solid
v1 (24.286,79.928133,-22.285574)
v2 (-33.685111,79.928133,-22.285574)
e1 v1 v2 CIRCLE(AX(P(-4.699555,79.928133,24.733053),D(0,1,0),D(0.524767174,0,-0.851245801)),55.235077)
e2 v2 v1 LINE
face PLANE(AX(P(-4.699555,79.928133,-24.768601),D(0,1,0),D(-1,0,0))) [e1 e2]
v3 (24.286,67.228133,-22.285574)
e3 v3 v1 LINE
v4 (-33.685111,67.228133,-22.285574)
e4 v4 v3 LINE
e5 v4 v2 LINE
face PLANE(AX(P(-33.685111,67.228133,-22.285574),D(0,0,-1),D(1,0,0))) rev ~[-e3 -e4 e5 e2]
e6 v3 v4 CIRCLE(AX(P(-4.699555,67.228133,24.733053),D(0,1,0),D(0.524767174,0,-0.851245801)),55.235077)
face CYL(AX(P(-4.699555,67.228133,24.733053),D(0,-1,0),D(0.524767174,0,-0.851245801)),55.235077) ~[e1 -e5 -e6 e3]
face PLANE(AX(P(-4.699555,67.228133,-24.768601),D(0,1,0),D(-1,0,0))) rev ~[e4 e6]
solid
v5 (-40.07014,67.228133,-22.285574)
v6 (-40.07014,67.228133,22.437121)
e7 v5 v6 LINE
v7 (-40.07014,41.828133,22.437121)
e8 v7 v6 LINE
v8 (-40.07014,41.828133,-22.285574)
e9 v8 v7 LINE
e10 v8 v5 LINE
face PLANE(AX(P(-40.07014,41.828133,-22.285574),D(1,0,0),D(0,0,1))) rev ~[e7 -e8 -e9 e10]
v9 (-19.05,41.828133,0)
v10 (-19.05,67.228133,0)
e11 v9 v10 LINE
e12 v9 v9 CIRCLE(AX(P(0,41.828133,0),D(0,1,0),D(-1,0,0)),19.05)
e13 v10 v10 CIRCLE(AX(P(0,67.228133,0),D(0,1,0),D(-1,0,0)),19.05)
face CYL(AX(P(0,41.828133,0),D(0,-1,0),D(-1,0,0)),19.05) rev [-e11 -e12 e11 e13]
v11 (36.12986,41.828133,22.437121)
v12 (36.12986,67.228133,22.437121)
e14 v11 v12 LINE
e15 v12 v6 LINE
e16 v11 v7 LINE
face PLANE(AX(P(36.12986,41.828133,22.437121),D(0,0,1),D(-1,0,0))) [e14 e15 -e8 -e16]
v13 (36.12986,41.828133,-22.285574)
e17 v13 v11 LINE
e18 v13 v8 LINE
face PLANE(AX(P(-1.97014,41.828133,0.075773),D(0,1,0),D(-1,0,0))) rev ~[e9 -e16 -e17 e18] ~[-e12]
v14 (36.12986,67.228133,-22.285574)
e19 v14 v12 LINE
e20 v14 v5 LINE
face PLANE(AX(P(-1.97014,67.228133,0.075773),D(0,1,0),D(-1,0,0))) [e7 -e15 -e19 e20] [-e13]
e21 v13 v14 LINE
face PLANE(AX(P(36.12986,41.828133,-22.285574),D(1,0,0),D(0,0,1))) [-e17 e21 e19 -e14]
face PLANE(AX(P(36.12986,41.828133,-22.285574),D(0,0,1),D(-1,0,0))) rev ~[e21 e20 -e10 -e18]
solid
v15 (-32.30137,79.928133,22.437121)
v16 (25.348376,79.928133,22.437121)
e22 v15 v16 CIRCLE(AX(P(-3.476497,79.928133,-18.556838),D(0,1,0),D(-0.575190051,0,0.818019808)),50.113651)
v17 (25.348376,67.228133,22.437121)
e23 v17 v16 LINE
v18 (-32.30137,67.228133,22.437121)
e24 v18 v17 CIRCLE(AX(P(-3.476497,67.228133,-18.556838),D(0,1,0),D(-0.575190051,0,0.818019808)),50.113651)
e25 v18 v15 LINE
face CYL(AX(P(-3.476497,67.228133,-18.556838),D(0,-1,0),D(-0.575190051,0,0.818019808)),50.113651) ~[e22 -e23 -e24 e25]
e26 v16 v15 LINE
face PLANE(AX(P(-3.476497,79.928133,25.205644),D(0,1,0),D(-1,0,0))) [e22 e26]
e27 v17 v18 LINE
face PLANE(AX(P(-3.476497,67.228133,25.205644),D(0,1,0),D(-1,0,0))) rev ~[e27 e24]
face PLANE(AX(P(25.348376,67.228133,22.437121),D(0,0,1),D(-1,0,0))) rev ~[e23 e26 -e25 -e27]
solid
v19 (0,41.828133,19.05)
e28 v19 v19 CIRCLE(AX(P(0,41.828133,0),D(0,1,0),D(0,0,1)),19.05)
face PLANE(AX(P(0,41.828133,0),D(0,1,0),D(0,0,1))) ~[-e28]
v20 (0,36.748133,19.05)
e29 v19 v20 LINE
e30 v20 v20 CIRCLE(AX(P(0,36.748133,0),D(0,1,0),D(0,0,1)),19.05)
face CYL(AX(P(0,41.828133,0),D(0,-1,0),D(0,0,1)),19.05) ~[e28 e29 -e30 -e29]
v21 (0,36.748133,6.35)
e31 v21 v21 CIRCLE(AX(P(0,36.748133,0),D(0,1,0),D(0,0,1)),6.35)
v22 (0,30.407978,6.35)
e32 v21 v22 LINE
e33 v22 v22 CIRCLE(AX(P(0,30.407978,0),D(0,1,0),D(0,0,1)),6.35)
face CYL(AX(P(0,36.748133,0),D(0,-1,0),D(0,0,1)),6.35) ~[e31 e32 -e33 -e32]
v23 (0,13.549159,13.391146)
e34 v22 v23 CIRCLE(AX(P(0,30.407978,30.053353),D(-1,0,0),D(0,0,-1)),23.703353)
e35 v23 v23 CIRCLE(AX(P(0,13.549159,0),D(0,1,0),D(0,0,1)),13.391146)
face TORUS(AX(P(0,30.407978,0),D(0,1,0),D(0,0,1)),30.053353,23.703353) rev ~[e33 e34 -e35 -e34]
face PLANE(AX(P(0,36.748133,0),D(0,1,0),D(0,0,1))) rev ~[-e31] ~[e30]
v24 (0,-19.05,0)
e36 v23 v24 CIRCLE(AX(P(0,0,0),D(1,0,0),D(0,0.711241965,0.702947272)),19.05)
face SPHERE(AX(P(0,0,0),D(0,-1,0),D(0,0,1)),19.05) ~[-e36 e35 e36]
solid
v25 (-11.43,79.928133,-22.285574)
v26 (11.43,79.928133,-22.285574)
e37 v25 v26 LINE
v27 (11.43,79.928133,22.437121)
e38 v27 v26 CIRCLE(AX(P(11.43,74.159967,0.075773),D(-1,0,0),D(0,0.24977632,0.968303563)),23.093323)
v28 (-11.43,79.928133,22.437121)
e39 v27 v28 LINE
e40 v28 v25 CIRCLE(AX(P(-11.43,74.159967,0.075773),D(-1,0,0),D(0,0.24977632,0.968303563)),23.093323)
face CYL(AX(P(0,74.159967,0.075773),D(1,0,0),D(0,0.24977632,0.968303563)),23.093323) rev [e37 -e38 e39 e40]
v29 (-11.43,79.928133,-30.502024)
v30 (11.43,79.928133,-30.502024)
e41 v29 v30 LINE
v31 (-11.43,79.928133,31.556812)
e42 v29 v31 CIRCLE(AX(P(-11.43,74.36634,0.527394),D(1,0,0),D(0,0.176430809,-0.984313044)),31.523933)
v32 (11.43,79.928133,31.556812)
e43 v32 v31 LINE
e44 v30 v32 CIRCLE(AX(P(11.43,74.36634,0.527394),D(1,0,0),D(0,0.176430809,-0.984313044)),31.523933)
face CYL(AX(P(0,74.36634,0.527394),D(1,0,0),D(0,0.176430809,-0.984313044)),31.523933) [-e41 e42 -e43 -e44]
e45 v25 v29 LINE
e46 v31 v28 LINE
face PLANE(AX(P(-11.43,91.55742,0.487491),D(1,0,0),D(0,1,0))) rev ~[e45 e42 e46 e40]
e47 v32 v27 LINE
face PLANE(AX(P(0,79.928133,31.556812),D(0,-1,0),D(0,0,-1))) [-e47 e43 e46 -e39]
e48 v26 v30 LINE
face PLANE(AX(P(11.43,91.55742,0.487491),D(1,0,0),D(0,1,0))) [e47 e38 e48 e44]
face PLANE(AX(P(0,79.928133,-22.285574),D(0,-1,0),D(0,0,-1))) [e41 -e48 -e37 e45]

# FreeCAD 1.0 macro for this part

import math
import FreeCAD as App
import Part
import Sketcher

V = App.Vector
Q = App.Units.Quantity

doc = App.newDocument("Part")
body = doc.addObject("PartDesign::Body", "Body")

sketch1 = doc.addObject("Sketcher::SketchObject", "Sketch")
body.addObject(sketch1)
sketch1.AttachmentSupport = (doc.YZ_Plane, [""])
sketch1.MapMode = "FlatFace"
sketch1.addGeometry([
    Part.LineSegment(V(-19, 0, 0), V(42, 0, 0)),
    Part.LineSegment(V(42, 0, 0), V(42, 19, 0)),
    Part.LineSegment(V(42, 19, 0), V(37, 19, 0)),
    Part.LineSegment(V(37, 19, 0), V(37, 6, 0)),
    Part.LineSegment(V(37, 6, 0), V(30, 6, 0)),
    Part.ArcOfCircle(Part.Circle(V(30, 30, 0), V(0, 0, 1), 24), math.radians(-135), math.radians(-90)),
    Part.ArcOfCircle(Part.Circle(V(0, 0, 0), V(0, 0, 1), 19), math.radians(45), math.radians(180)),
], False)
sketch1.addConstraint([
    Sketcher.Constraint("Coincident", 0, 2, 1, 1),
    Sketcher.Constraint("Coincident", 1, 2, 2, 1),
    Sketcher.Constraint("Coincident", 2, 2, 3, 1),
    Sketcher.Constraint("Coincident", 3, 2, 4, 1),
    Sketcher.Constraint("Tangent", 4, 2, 5, 2),
    Sketcher.Constraint("Tangent", 5, 1, 6, 1),
    Sketcher.Constraint("Coincident", 6, 2, 0, 1),
    Sketcher.Constraint("Horizontal", 0),
    Sketcher.Constraint("Vertical", 1),
    Sketcher.Constraint("Horizontal", 2),
    Sketcher.Constraint("Vertical", 3),
    Sketcher.Constraint("Horizontal", 4),
    Sketcher.Constraint("Coincident", 6, 3, -1, 1),
    Sketcher.Constraint("PointOnObject", 0, 2, -1),
    Sketcher.Constraint("Radius", 6, Q("0.75 in")),
    Sketcher.Constraint("DistanceX", 2, 2, 2, 1, Q("0.2 in")),
    Sketcher.Constraint("DistanceY", 3, 2, 3, 1, Q("0.5 in")),
    Sketcher.Constraint("DistanceY", 1, 1, 1, 2, Q("0.75 in")),
    Sketcher.Constraint("Radius", 5, 23.703353),
    Sketcher.Constraint("DistanceX", 0, 1, 0, 2, 60.878133),
])
revolution = doc.addObject("PartDesign::Revolution", "Revolution")
body.addObject(revolution)
revolution.Profile = sketch1
revolution.ReferenceAxis = (sketch1, ["H_Axis"])
revolution.Angle = 360
body2 = doc.addObject("PartDesign::Body", "Body001")

sketch2 = doc.addObject("Sketcher::SketchObject", "Sketch001")
body2.addObject(sketch2)
sketch2.AttachmentSupport = (doc.getObject("XZ_Plane001"), [""])
sketch2.MapMode = "FlatFace"
sketch2.AttachmentOffset = App.Placement(V(0, 0, -41.828133), App.Rotation())
sketch2.addGeometry([
    Part.LineSegment(V(36, 22, 0), V(36, -22, 0)),
    Part.LineSegment(V(36, -22, 0), V(-40, -22, 0)),
    Part.LineSegment(V(-40, -22, 0), V(-40, 22, 0)),
    Part.LineSegment(V(-40, 22, 0), V(36, 22, 0)),
    Part.Circle(V(0, 0, 0), V(0, 0, 1), 19),
], False)
sketch2.addConstraint([
    Sketcher.Constraint("Coincident", 0, 2, 1, 1),
    Sketcher.Constraint("Coincident", 1, 2, 2, 1),
    Sketcher.Constraint("Coincident", 2, 2, 3, 1),
    Sketcher.Constraint("Coincident", 3, 2, 0, 1),
    Sketcher.Constraint("Vertical", 0),
    Sketcher.Constraint("Horizontal", 1),
    Sketcher.Constraint("Vertical", 2),
    Sketcher.Constraint("Horizontal", 3),
    Sketcher.Constraint("Coincident", 4, 3, -1, 1),
    Sketcher.Constraint("Diameter", 4, Q("1.5 in")),
    Sketcher.Constraint("DistanceX", 1, 2, 1, 1, Q("3 in")),
    Sketcher.Constraint("DistanceY", 0, 2, 0, 1, 44.722695),
    Sketcher.Constraint("DistanceX", -1, 1, 0, 2, 36.12986),
    Sketcher.Constraint("DistanceY", -1, 1, 2, 2, 22.437121),
])
pad1 = doc.addObject("PartDesign::Pad", "Pad")
body2.addObject(pad1)
pad1.Profile = sketch2
pad1.Length = Q("1 in")
pad1.Reversed = True
body3 = doc.addObject("PartDesign::Body", "Body002")

sketch3 = doc.addObject("Sketcher::SketchObject", "Sketch002")
body3.addObject(sketch3)
sketch3.AttachmentSupport = (doc.getObject("XZ_Plane002"), [""])
sketch3.MapMode = "FlatFace"
sketch3.AttachmentOffset = App.Placement(V(0, 0, -67.228133), App.Rotation())
sketch3.addGeometry([
    Part.LineSegment(V(-34, -22, 0), V(24, -22, 0)),
    Part.ArcOfCircle(Part.Circle(V(-5, 25, 0), V(0, 0, 1), 55), math.radians(-122), math.radians(-58)),
], False)
sketch3.addConstraint([
    Sketcher.Constraint("Coincident", 0, 1, 1, 1),
    Sketcher.Constraint("Coincident", 1, 2, 0, 2),
    Sketcher.Constraint("Horizontal", 0),
    Sketcher.Constraint("Radius", 1, 55.235077),
    Sketcher.Constraint("DistanceX", 0, 1, 0, 2, 57.971111),
    Sketcher.Constraint("DistanceX", -1, 1, 1, 2, 24.286),
    Sketcher.Constraint("DistanceY", -1, 1, 1, 3, 24.733053),
])
pad2 = doc.addObject("PartDesign::Pad", "Pad001")
body3.addObject(pad2)
pad2.Profile = sketch3
pad2.Length = Q("0.5 in")
pad2.Reversed = True
body4 = doc.addObject("PartDesign::Body", "Body003")

sketch4 = doc.addObject("Sketcher::SketchObject", "Sketch003")
body4.addObject(sketch4)
sketch4.AttachmentSupport = (doc.getObject("XZ_Plane003"), [""])
sketch4.MapMode = "FlatFace"
sketch4.AttachmentOffset = App.Placement(V(0, 0, -67.228133), App.Rotation())
sketch4.addGeometry([
    Part.ArcOfCircle(Part.Circle(V(-3, -19, 0), V(0, 0, 1), 50), math.radians(55), math.radians(125)),
    Part.LineSegment(V(25, 22, 0), V(-32, 22, 0)),
], False)
sketch4.addConstraint([
    Sketcher.Constraint("Coincident", 0, 1, 1, 1),
    Sketcher.Constraint("Coincident", 1, 2, 0, 2),
    Sketcher.Constraint("Horizontal", 1),
    Sketcher.Constraint("Radius", 0, 50.113651),
    Sketcher.Constraint("DistanceX", 1, 2, 1, 1, 57.649747),
    Sketcher.Constraint("DistanceY", 0, 3, -1, 1, 18.556838),
    Sketcher.Constraint("DistanceX", 1, 2, -1, 1, 32.30137),
])
pad3 = doc.addObject("PartDesign::Pad", "Pad002")
body4.addObject(pad3)
pad3.Profile = sketch4
pad3.Length = Q("0.5 in")
pad3.Reversed = True
body5 = doc.addObject("PartDesign::Body", "Body004")

sketch5 = doc.addObject("Sketcher::SketchObject", "Sketch004")
body5.addObject(sketch5)
sketch5.AttachmentSupport = (doc.getObject("YZ_Plane004"), [""])
sketch5.MapMode = "FlatFace"
sketch5.addGeometry([
    Part.ArcOfCircle(Part.Circle(V(74, 0, 0), V(0, 0, 1), 23), math.radians(-76), math.radians(76)),
    Part.LineSegment(V(80, -22, 0), V(80, -31, 0)),
    Part.ArcOfCircle(Part.Circle(V(74, 1, 0), V(0, 0, 1), 32), math.radians(-80), math.radians(80)),
    Part.LineSegment(V(80, 32, 0), V(80, 22, 0)),
], False)
sketch5.addConstraint([
    Sketcher.Constraint("Coincident", 0, 1, 1, 1),
    Sketcher.Constraint("Coincident", 1, 2, 2, 1),
    Sketcher.Constraint("Coincident", 2, 2, 3, 1),
    Sketcher.Constraint("Coincident", 3, 2, 0, 2),
    Sketcher.Constraint("Vertical", 1),
    Sketcher.Constraint("Vertical", 3),
    Sketcher.Constraint("Vertical", 1, 2, 2, 2),
    Sketcher.Constraint("Radius", 0, 23.093323),
    Sketcher.Constraint("Radius", 2, 31.523933),
    Sketcher.Constraint("DistanceY", 1, 2, 1, 1, 8.21645),
    Sketcher.Constraint("DistanceY", 3, 2, 3, 1, 9.119692),
    Sketcher.Constraint("DistanceX", -1, 1, 2, 3, 74.36634),
    Sketcher.Constraint("DistanceY", -1, 1, 3, 2, 22.437121),
    Sketcher.Constraint("DistanceY", 0, 1, 2, 3, 22.812968),
])
pad4 = doc.addObject("PartDesign::Pad", "Pad003")
body5.addObject(pad4)
pad4.Profile = sketch5
pad4.Length = Q("0.9 in")
pad4.Midplane = True

doc.recompute()
